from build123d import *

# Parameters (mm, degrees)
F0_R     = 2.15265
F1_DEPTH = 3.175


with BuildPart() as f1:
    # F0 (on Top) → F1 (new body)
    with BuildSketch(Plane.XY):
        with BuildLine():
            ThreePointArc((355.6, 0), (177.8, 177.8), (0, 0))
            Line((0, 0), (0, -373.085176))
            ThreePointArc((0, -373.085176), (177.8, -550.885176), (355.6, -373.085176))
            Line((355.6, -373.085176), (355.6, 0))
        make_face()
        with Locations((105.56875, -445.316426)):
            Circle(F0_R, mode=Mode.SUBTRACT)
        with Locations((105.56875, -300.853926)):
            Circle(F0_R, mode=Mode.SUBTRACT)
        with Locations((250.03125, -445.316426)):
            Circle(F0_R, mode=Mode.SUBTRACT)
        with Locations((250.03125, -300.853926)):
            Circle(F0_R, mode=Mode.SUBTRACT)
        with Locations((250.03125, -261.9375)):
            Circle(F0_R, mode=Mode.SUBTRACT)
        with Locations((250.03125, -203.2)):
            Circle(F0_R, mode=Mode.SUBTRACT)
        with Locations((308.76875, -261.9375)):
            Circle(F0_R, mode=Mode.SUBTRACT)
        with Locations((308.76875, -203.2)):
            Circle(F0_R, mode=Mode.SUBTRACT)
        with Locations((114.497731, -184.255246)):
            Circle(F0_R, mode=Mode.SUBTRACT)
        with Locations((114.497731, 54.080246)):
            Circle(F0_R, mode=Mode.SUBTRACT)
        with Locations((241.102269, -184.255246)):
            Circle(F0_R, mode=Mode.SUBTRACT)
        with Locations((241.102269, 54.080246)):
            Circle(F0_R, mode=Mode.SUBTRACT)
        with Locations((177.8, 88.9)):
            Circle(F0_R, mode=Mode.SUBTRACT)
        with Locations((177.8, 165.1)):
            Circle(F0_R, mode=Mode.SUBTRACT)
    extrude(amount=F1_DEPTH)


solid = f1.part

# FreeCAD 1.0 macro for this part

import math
import FreeCAD as App
import Part
import Sketcher

V = App.Vector
Q = App.Units.Quantity

doc = App.newDocument("Part")
body = doc.addObject("PartDesign::Body", "Body")

sketch1 = body.newObject("Sketcher::SketchObject", "Sketch")
sketch1.AttachmentSupport = (doc.getObject("XY_Plane"), [""])
sketch1.MapMode = "FlatFace"
sketch1.addGeometry([
    Part.ArcOfCircle(Part.Circle(V(177.8, 0, 0), V(0, 0, 1), 177.8), math.radians(0), math.radians(180)),
    Part.LineSegment(V(0, 0, 0), V(0, -373.085176, 0)),
    Part.ArcOfCircle(Part.Circle(V(177.8, -373.085176, 0), V(0, 0, 1), 177.8), math.radians(180), math.radians(360)),
    Part.LineSegment(V(355.6, -373.085176, 0), V(355.6, 0, 0)),
    Part.Circle(V(105.56875, -445.316426, 0), V(0, 0, 1), 2.15265),
    Part.Circle(V(105.56875, -300.853926, 0), V(0, 0, 1), 2.15265),
    Part.Circle(V(114.497731, -184.255246, 0), V(0, 0, 1), 2.15265),
    Part.Circle(V(250.03125, -445.316426, 0), V(0, 0, 1), 2.15265),
    Part.Circle(V(250.03125, -300.853926, 0), V(0, 0, 1), 2.15265),
    Part.Circle(V(250.03125, -261.9375, 0), V(0, 0, 1), 2.15265),
    Part.Circle(V(241.102269, -184.255246, 0), V(0, 0, 1), 2.15265),
    Part.Circle(V(250.03125, -203.2, 0), V(0, 0, 1), 2.15265),
    Part.Circle(V(308.76875, -261.9375, 0), V(0, 0, 1), 2.15265),
    Part.Circle(V(308.76875, -203.2, 0), V(0, 0, 1), 2.15265),
    Part.Circle(V(114.497731, 54.080246, 0), V(0, 0, 1), 2.15265),
    Part.Circle(V(177.8, 88.9, 0), V(0, 0, 1), 2.15265),
    Part.Circle(V(177.8, 165.1, 0), V(0, 0, 1), 2.15265),
    Part.Circle(V(241.102269, 54.080246, 0), V(0, 0, 1), 2.15265),
], False)
sketch1.addConstraint([
    Sketcher.Constraint("Tangent", 0, 2, 1, 1),
    Sketcher.Constraint("Tangent", 1, 2, 2, 1),
    Sketcher.Constraint("Tangent", 2, 2, 3, 1),
    Sketcher.Constraint("Tangent", 3, 2, 0, 1),
    Sketcher.Constraint("Vertical", 1),
    Sketcher.Constraint("Vertical", 3),
    Sketcher.Constraint("Coincident", 0, 2, -1, 1),
    Sketcher.Constraint("Equal", 4, 5),
    Sketcher.Constraint("Equal", 5, 6),
    Sketcher.Constraint("Equal", 6, 7),
    Sketcher.Constraint("Equal", 7, 8),
    Sketcher.Constraint("Equal", 8, 9),
    Sketcher.Constraint("Equal", 9, 10),
    Sketcher.Constraint("Equal", 10, 11),
    Sketcher.Constraint("Equal", 11, 12),
    Sketcher.Constraint("Equal", 12, 13),
    Sketcher.Constraint("Equal", 13, 14),
    Sketcher.Constraint("Equal", 14, 15),
    Sketcher.Constraint("Equal", 15, 16),
    Sketcher.Constraint("Equal", 16, 17),
    Sketcher.Constraint("Horizontal", 4, 3, 7, 3),
    Sketcher.Constraint("Horizontal", 5, 3, 8, 3),
    Sketcher.Constraint("Horizontal", 6, 3, 10, 3),
    Sketcher.Constraint("Horizontal", 9, 3, 12, 3),
    Sketcher.Constraint("Horizontal", 11, 3, 13, 3),
    Sketcher.Constraint("Horizontal", 14, 3, 17, 3),
    Sketcher.Constraint("Vertical", 4, 3, 5, 3),
    Sketcher.Constraint("Vertical", 7, 3, 8, 3),
    Sketcher.Constraint("Vertical", 8, 3, 9, 3),
    Sketcher.Constraint("Vertical", 9, 3, 11, 3),
    Sketcher.Constraint("Vertical", 12, 3, 13, 3),
    Sketcher.Constraint("Vertical", 6, 3, 14, 3),
    Sketcher.Constraint("Vertical", 2, 3, 15, 3),
    Sketcher.Constraint("Vertical", 15, 3, 16, 3),
    Sketcher.Constraint("Vertical", 10, 3, 17, 3),
    Sketcher.Constraint("Radius", 0, Q("7 in")),
    Sketcher.Constraint("DistanceY", 11, 3, -1, 1, Q("8 in")),
    Sketcher.Constraint("DistanceY", 15, 3, 16, 3, Q("3 in")),
    Sketcher.Constraint("Diameter", 4, Q("0.1695 in")),
    Sketcher.Constraint("DistanceY", -1, 1, 15, 3, Q("3.5 in")),
    Sketcher.Constraint("DistanceX", -1, 1, 4, 3, Q("4.15625 in")),
    Sketcher.Constraint("DistanceX", -1, 1, 7, 3, Q("9.84375 in")),
    Sketcher.Constraint("DistanceY", 9, 3, -1, 1, Q("10.3125 in")),
    Sketcher.Constraint("DistanceX", -1, 1, 12, 3, Q("12.15625 in")),
    Sketcher.Constraint("DistanceY", 4, 3, 2, 3, Q("2.84375 in")),
    Sketcher.Constraint("DistanceY", 2, 3, 5, 3, Q("2.84375 in")),
    Sketcher.Constraint("DistanceY", 1, 2, 1, 1, 373.085176),
    Sketcher.Constraint("DistanceX", -1, 1, 6, 3, 114.497731),
    Sketcher.Constraint("DistanceX", -1, 1, 10, 3, 241.102269),
    Sketcher.Constraint("DistanceY", 5, 3, 6, 3, 116.59868),
    Sketcher.Constraint("DistanceY", 6, 3, 14, 3, 238.335492),
])
pad1 = body.newObject("PartDesign::Pad", "Pad")
pad1.Profile = sketch1
pad1.Length = Q("0.125 in")

doc.recompute()
